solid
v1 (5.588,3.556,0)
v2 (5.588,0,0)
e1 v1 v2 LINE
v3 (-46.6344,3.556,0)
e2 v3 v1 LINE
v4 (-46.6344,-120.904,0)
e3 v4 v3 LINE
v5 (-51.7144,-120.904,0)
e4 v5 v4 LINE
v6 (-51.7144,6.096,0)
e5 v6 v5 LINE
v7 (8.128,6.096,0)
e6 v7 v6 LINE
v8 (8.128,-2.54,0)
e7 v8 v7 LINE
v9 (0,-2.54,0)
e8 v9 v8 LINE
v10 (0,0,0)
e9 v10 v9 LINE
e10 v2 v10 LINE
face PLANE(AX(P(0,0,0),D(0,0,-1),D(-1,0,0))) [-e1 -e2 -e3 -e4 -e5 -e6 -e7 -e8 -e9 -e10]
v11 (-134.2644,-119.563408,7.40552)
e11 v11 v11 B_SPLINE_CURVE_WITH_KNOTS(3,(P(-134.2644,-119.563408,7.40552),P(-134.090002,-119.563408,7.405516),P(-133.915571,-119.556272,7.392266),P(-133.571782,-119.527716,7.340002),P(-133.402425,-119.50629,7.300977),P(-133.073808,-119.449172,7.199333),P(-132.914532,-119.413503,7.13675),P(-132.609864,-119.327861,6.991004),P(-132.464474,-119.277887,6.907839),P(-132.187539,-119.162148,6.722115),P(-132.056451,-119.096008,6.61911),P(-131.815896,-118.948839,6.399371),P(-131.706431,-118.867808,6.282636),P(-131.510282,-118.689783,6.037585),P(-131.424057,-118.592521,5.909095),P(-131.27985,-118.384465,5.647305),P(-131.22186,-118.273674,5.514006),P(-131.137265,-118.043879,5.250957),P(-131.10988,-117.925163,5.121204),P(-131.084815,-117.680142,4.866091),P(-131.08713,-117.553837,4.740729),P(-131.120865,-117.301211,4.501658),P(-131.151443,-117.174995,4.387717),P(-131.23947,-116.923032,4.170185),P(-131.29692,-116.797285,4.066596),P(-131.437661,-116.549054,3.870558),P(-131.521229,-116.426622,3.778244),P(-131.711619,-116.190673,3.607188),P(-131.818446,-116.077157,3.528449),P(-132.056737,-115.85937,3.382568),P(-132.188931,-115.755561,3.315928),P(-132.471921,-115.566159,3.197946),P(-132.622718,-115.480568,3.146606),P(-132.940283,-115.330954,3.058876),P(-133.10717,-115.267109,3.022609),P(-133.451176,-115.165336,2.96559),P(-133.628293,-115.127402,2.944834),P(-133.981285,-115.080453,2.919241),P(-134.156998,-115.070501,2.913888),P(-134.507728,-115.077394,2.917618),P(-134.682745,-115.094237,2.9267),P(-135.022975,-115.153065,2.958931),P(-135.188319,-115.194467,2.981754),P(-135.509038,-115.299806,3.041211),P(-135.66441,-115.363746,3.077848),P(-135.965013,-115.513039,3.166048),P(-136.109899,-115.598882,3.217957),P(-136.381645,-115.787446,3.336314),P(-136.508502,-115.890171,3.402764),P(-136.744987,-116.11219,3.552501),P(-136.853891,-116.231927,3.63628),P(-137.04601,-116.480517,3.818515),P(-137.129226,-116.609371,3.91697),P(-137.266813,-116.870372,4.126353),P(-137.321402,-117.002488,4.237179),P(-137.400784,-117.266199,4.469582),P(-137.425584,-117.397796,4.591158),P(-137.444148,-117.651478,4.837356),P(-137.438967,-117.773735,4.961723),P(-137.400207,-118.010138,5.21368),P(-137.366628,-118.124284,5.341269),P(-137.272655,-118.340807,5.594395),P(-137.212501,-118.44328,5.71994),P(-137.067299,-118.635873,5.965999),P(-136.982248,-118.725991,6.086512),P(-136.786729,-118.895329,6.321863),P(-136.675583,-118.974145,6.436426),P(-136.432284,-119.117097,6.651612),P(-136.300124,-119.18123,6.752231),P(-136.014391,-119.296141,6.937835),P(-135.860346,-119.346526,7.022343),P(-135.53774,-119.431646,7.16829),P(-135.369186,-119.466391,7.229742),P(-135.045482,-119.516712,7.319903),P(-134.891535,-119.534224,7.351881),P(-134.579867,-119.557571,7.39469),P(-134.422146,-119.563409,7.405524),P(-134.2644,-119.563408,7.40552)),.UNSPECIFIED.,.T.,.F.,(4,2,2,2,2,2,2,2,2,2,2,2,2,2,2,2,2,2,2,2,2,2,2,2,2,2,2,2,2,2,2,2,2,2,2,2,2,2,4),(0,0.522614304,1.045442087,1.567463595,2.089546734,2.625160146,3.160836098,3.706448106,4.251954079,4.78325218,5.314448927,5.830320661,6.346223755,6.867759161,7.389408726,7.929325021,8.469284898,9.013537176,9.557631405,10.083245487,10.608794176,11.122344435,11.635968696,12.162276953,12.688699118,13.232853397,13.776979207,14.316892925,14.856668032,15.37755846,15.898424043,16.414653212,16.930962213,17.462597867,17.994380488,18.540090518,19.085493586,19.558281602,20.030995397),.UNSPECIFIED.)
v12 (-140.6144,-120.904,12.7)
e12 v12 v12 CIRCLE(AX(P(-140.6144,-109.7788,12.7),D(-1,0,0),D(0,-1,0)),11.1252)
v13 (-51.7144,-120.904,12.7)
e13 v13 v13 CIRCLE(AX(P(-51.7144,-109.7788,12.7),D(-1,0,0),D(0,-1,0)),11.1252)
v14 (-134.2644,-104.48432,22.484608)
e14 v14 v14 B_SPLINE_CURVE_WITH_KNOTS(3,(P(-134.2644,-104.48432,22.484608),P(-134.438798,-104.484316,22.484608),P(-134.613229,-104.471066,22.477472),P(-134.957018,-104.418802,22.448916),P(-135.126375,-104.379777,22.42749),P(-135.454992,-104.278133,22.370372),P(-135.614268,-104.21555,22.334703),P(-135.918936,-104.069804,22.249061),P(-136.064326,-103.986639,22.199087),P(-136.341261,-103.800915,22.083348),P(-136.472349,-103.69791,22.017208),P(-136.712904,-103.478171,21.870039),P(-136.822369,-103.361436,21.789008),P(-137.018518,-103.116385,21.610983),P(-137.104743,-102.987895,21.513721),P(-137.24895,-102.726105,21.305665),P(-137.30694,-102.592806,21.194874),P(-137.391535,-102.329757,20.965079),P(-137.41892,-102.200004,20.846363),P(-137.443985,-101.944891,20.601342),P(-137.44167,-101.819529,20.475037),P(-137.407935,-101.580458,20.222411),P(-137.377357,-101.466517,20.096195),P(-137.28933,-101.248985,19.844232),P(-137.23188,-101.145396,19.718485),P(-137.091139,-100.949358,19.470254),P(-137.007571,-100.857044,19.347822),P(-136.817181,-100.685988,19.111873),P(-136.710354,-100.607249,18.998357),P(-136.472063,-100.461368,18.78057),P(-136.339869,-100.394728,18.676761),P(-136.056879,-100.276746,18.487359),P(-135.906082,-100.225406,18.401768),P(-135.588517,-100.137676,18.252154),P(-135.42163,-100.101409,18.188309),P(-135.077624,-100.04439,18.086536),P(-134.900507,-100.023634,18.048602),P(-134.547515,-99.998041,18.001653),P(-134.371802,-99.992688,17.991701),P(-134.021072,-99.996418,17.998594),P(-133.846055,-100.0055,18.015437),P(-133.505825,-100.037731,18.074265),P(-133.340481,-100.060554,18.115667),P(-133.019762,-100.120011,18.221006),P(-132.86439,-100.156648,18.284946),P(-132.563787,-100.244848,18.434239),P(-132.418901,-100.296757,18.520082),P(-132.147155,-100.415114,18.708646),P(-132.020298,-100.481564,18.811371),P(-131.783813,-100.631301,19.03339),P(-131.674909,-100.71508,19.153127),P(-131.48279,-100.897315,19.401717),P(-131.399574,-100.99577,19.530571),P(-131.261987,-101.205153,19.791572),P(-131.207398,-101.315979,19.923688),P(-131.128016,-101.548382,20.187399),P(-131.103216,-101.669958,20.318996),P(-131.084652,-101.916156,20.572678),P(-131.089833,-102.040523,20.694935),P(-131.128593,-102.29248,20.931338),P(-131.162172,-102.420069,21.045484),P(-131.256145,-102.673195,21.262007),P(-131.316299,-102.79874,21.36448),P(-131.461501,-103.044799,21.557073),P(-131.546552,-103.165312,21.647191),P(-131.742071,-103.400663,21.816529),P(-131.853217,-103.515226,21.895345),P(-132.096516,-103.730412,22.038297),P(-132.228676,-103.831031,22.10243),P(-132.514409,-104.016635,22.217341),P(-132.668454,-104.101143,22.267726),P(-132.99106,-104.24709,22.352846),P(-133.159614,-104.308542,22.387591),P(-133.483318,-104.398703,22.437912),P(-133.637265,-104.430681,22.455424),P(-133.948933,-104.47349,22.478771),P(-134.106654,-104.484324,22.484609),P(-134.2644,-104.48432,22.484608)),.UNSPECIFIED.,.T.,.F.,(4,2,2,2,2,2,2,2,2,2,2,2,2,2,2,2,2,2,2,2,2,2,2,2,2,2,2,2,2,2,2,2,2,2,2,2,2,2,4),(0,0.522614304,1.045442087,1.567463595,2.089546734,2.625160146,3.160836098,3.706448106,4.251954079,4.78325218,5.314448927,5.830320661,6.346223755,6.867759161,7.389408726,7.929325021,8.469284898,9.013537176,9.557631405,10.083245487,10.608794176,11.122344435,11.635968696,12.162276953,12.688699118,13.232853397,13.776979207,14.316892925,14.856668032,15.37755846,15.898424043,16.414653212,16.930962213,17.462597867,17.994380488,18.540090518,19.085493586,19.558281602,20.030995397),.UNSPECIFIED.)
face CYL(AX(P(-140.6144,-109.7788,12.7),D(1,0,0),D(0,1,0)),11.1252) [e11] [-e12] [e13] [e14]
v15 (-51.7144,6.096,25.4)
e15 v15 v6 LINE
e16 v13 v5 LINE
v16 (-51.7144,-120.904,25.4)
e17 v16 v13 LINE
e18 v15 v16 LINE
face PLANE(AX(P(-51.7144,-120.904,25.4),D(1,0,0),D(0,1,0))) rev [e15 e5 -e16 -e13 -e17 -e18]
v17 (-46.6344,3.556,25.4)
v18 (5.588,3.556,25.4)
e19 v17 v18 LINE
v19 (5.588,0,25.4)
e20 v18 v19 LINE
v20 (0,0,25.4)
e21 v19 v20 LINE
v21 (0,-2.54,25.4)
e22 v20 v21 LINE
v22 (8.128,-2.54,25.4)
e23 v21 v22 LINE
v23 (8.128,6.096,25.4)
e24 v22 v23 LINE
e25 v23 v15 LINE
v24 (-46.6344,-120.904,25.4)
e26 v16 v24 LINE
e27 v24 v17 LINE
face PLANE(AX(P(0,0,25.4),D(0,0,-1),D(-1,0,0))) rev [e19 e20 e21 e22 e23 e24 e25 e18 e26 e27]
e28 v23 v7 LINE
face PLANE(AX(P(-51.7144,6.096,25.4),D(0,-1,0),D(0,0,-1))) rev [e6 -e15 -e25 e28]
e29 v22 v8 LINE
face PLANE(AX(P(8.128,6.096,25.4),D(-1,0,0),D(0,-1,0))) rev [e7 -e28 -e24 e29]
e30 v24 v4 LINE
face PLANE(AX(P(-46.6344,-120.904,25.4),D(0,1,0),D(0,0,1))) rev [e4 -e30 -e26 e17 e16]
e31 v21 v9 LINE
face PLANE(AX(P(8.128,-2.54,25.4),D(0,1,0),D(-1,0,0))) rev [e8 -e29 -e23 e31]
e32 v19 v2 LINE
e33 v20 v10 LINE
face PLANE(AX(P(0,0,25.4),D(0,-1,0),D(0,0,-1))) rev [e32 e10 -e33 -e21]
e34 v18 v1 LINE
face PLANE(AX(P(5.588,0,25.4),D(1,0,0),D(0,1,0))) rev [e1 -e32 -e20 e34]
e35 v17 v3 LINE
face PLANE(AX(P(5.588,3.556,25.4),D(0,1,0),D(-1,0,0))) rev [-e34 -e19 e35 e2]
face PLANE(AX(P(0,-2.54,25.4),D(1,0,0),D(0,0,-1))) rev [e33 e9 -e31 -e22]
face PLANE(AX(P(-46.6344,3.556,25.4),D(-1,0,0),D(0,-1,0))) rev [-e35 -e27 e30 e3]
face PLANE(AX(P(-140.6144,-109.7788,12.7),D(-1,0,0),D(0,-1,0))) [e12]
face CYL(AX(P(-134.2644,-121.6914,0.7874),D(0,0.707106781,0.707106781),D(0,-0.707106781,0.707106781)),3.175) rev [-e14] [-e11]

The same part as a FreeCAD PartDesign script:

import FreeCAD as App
import Part
import Sketcher
from FreeCAD import Vector
Q = App.Units.Quantity


def add_polygon(sketch, points):
    """Adds a closed chain of lines whose ends are joined by coincident constraints."""
    first, n = sketch.GeometryCount, len(points)
    for a, b in zip(points, points[1:] + points[:1]):
        sketch.addGeometry(Part.LineSegment(App.Vector(*a, 0), App.Vector(*b, 0)), False)
    for i in range(n):
        sketch.addConstraint(Sketcher.Constraint("Coincident", first + i, 2, first + (i + 1) % n, 1))

doc = App.newDocument("Part")
params = doc.addObject("Spreadsheet::Sheet", "Params")
for row, (alias, value) in enumerate([
    ("sketch1_height", "5 in"),
    ("sketch1_width", "0.2 in"),
    ("sketch1_height2", "0.1 in"),
    ("sketch1_height3", "4.9 in"),
    ("sketch1_width2", "0.22 in"),
    ("pad1_length", "1 in"),
    ("sketch2_diameter", "0.876 in"),
    ("pad2_length", "3.5 in"),
    ("sketch3_diameter", "0.25 in"),
], start=1):
    params.set(f"A{row}", alias)
    params.set(f"B{row}", "=" + value)
    params.setAlias(f"B{row}", alias)

body = doc.addObject("PartDesign::Body", "Body")

# Sketch on XY plane
sketch1 = body.newObject("Sketcher::SketchObject", "Sketch")
sketch1.AttachmentSupport = (doc.getObject("XY_Plane"), [""])
sketch1.MapMode = "FlatFace"
add_polygon(sketch1, [(5.6, 0), (0, 0), (0, -2.5), (8.1, -2.5), (8.1, 6.1), (-51.7, 6.1), (-51.7, -120.9), (-46.6, -120.9), (-46.6, 3.6), (5.6, 3.6)])  # lines 0-9
sketch1.addConstraint([
    Sketcher.Constraint("Horizontal", 0),
    Sketcher.Constraint("Vertical", 1),
    Sketcher.Constraint("Horizontal", 2),
    Sketcher.Constraint("Vertical", 3),
    Sketcher.Constraint("Horizontal", 4),
    Sketcher.Constraint("Vertical", 5),
    Sketcher.Constraint("Horizontal", 6),
    Sketcher.Constraint("Vertical", 7),
    Sketcher.Constraint("Horizontal", 8),
    Sketcher.Constraint("Vertical", 9),
    Sketcher.Constraint("Coincident", 0, 2, -1, 1),
    Sketcher.Constraint("DistanceY", 5, 2, 5, 1, Q("5 in")),
    Sketcher.Constraint("DistanceX", 6, 1, 6, 2, Q("0.2 in")),
    Sketcher.Constraint("DistanceY", 1, 2, 1, 1, Q("0.1 in")),
    Sketcher.Constraint("DistanceY", 7, 1, 7, 2, Q("4.9 in")),
    Sketcher.Constraint("DistanceX", 0, 2, 0, 1, Q("0.22 in")),
    Sketcher.Constraint("DistanceX", 2, 1, 2, 2, Q("0.32 in")),
    Sketcher.Constraint("DistanceY", 3, 1, 3, 2, Q("0.34 in")),
    Sketcher.Constraint("DistanceX", 4, 2, 4, 1, Q("2.356 in")),
])
sketch1.setExpression("Constraints[21]", "Params.sketch1_height")
sketch1.setExpression("Constraints[22]", "Params.sketch1_width")
sketch1.setExpression("Constraints[23]", "Params.sketch1_height2")
sketch1.setExpression("Constraints[24]", "Params.sketch1_height3")
sketch1.setExpression("Constraints[25]", "Params.sketch1_width2")
pad1 = body.newObject("PartDesign::Pad", "Pad")
pad1.Profile = sketch1
pad1.setExpression("Length", "Params.pad1_length")

# Sketch on YZ plane
sketch2 = body.newObject("Sketcher::SketchObject", "Sketch001")
sketch2.AttachmentSupport = (doc.getObject("YZ_Plane"), [""])
sketch2.MapMode = "FlatFace"
sketch2.AttachmentOffset = App.Placement(Vector(0, 0, -2.036 * 25.4), App.Rotation())
sketch2.addGeometry(Part.Circle(Vector(-110, 13, 0), Vector(0, 0, 1), 11), False)
sketch2.addConstraint([
    Sketcher.Constraint("Diameter", 0, Q("0.876 in")),
    Sketcher.Constraint("DistanceY", -1, 1, 0, 3, Q("0.5 in")),
    Sketcher.Constraint("DistanceX", 0, 3, -1, 1, Q("4.322 in")),
])
sketch2.setExpression("Constraints[0]", "Params.sketch2_diameter")
pad2 = body.newObject("PartDesign::Pad", "Pad001")
pad2.Profile = sketch2
pad2.setExpression("Length", "Params.pad2_length")
pad2.Reversed = True

# Sketch on an angled plane
sketch3 = body.newObject("Sketcher::SketchObject", "Sketch002")
sketch3.Placement = App.Placement(Vector(0, -40.672696, -40.672696), App.Rotation(Vector(1, 0, 0), Vector(0, 0.707106781, -0.707106781), Vector(0, 0.707106781, 0.707106781), "ZXY"))
sketch3.addGeometry(Part.Circle(Vector(-134.3, -86.6, 0), Vector(0, 0, 1), 3.2), False)
sketch3.addConstraint([
    Sketcher.Constraint("Diameter", 0, Q("0.25 in")),
    Sketcher.Constraint("DistanceX", 0, 3, -1, 1, Q("5.286 in")),
    Sketcher.Constraint("DistanceY", 0, 3, -1, 1, 86.60559),
])
sketch3.setExpression("Constraints[0]", "Params.sketch3_diameter")
pocket1 = body.newObject("PartDesign::Pocket", "Pocket")
pocket1.Profile = sketch3
pocket1.Type = "ThroughAll"

doc.recompute()
